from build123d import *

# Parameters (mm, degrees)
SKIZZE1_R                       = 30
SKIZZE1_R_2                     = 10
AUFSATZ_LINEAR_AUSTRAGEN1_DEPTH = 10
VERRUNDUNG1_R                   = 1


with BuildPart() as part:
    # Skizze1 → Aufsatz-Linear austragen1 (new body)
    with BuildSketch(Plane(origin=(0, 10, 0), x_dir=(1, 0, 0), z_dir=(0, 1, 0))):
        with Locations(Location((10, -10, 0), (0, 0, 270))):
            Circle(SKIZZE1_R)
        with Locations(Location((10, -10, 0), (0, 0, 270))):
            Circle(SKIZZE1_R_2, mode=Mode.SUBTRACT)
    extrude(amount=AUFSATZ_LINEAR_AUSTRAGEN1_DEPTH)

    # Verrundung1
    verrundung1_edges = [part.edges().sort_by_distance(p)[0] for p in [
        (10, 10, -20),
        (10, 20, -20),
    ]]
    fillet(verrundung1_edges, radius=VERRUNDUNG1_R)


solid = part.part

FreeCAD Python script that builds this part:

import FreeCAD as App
import Part
import Sketcher
from FreeCAD import Vector
Q = App.Units.Quantity


def edges_at(feature, points):
    """Names of the edges that pass closest to the given points."""
    edges = feature.Shape.Edges
    near = lambda p: min(range(len(edges)), key=lambda i: edges[i].distToShape(Part.Vertex(*p))[0])
    return sorted({f"Edge{near(p) + 1}" for p in points})

doc = App.newDocument("Part")
body = doc.addObject("PartDesign::Body", "Body")

sketch1 = body.newObject("Sketcher::SketchObject", "Sketch")
sketch1.AttachmentSupport = (doc.getObject("XZ_Plane"), [""])
sketch1.MapMode = "FlatFace"
sketch1.AttachmentOffset = App.Placement(Vector(0, 0, -10), App.Rotation())
sketch1.addGeometry(Part.Circle(Vector(10, 10, 0), Vector(0, 0, 1), 30), False)
sketch1.addGeometry(Part.Circle(Vector(10, 10, 0), Vector(0, 0, 1), 10), False)
sketch1.addConstraint(Sketcher.Constraint("Coincident", 1, 3, 0, 3))
sketch1.addConstraint(Sketcher.Constraint("Diameter", 0, Q("60 mm")))
sketch1.addConstraint(Sketcher.Constraint("Diameter", 1, Q("20 mm")))
sketch1.addConstraint(Sketcher.Constraint("DistanceX", -1, 1, 0, 3, Q("10 mm")))
sketch1.addConstraint(Sketcher.Constraint("DistanceY", -1, 1, 0, 3, Q("10 mm")))
pad1 = body.newObject("PartDesign::Pad", "Pad")
pad1.Profile = sketch1
pad1.Length = 10
pad1.Reversed = True
doc.recompute()

fillet = body.newObject("PartDesign::Fillet", "Fillet")
fillet.Base = (pad1, edges_at(pad1, [(10, 10, -20), (10, 20, -20)]))
fillet.Radius = 1

doc.recompute()
